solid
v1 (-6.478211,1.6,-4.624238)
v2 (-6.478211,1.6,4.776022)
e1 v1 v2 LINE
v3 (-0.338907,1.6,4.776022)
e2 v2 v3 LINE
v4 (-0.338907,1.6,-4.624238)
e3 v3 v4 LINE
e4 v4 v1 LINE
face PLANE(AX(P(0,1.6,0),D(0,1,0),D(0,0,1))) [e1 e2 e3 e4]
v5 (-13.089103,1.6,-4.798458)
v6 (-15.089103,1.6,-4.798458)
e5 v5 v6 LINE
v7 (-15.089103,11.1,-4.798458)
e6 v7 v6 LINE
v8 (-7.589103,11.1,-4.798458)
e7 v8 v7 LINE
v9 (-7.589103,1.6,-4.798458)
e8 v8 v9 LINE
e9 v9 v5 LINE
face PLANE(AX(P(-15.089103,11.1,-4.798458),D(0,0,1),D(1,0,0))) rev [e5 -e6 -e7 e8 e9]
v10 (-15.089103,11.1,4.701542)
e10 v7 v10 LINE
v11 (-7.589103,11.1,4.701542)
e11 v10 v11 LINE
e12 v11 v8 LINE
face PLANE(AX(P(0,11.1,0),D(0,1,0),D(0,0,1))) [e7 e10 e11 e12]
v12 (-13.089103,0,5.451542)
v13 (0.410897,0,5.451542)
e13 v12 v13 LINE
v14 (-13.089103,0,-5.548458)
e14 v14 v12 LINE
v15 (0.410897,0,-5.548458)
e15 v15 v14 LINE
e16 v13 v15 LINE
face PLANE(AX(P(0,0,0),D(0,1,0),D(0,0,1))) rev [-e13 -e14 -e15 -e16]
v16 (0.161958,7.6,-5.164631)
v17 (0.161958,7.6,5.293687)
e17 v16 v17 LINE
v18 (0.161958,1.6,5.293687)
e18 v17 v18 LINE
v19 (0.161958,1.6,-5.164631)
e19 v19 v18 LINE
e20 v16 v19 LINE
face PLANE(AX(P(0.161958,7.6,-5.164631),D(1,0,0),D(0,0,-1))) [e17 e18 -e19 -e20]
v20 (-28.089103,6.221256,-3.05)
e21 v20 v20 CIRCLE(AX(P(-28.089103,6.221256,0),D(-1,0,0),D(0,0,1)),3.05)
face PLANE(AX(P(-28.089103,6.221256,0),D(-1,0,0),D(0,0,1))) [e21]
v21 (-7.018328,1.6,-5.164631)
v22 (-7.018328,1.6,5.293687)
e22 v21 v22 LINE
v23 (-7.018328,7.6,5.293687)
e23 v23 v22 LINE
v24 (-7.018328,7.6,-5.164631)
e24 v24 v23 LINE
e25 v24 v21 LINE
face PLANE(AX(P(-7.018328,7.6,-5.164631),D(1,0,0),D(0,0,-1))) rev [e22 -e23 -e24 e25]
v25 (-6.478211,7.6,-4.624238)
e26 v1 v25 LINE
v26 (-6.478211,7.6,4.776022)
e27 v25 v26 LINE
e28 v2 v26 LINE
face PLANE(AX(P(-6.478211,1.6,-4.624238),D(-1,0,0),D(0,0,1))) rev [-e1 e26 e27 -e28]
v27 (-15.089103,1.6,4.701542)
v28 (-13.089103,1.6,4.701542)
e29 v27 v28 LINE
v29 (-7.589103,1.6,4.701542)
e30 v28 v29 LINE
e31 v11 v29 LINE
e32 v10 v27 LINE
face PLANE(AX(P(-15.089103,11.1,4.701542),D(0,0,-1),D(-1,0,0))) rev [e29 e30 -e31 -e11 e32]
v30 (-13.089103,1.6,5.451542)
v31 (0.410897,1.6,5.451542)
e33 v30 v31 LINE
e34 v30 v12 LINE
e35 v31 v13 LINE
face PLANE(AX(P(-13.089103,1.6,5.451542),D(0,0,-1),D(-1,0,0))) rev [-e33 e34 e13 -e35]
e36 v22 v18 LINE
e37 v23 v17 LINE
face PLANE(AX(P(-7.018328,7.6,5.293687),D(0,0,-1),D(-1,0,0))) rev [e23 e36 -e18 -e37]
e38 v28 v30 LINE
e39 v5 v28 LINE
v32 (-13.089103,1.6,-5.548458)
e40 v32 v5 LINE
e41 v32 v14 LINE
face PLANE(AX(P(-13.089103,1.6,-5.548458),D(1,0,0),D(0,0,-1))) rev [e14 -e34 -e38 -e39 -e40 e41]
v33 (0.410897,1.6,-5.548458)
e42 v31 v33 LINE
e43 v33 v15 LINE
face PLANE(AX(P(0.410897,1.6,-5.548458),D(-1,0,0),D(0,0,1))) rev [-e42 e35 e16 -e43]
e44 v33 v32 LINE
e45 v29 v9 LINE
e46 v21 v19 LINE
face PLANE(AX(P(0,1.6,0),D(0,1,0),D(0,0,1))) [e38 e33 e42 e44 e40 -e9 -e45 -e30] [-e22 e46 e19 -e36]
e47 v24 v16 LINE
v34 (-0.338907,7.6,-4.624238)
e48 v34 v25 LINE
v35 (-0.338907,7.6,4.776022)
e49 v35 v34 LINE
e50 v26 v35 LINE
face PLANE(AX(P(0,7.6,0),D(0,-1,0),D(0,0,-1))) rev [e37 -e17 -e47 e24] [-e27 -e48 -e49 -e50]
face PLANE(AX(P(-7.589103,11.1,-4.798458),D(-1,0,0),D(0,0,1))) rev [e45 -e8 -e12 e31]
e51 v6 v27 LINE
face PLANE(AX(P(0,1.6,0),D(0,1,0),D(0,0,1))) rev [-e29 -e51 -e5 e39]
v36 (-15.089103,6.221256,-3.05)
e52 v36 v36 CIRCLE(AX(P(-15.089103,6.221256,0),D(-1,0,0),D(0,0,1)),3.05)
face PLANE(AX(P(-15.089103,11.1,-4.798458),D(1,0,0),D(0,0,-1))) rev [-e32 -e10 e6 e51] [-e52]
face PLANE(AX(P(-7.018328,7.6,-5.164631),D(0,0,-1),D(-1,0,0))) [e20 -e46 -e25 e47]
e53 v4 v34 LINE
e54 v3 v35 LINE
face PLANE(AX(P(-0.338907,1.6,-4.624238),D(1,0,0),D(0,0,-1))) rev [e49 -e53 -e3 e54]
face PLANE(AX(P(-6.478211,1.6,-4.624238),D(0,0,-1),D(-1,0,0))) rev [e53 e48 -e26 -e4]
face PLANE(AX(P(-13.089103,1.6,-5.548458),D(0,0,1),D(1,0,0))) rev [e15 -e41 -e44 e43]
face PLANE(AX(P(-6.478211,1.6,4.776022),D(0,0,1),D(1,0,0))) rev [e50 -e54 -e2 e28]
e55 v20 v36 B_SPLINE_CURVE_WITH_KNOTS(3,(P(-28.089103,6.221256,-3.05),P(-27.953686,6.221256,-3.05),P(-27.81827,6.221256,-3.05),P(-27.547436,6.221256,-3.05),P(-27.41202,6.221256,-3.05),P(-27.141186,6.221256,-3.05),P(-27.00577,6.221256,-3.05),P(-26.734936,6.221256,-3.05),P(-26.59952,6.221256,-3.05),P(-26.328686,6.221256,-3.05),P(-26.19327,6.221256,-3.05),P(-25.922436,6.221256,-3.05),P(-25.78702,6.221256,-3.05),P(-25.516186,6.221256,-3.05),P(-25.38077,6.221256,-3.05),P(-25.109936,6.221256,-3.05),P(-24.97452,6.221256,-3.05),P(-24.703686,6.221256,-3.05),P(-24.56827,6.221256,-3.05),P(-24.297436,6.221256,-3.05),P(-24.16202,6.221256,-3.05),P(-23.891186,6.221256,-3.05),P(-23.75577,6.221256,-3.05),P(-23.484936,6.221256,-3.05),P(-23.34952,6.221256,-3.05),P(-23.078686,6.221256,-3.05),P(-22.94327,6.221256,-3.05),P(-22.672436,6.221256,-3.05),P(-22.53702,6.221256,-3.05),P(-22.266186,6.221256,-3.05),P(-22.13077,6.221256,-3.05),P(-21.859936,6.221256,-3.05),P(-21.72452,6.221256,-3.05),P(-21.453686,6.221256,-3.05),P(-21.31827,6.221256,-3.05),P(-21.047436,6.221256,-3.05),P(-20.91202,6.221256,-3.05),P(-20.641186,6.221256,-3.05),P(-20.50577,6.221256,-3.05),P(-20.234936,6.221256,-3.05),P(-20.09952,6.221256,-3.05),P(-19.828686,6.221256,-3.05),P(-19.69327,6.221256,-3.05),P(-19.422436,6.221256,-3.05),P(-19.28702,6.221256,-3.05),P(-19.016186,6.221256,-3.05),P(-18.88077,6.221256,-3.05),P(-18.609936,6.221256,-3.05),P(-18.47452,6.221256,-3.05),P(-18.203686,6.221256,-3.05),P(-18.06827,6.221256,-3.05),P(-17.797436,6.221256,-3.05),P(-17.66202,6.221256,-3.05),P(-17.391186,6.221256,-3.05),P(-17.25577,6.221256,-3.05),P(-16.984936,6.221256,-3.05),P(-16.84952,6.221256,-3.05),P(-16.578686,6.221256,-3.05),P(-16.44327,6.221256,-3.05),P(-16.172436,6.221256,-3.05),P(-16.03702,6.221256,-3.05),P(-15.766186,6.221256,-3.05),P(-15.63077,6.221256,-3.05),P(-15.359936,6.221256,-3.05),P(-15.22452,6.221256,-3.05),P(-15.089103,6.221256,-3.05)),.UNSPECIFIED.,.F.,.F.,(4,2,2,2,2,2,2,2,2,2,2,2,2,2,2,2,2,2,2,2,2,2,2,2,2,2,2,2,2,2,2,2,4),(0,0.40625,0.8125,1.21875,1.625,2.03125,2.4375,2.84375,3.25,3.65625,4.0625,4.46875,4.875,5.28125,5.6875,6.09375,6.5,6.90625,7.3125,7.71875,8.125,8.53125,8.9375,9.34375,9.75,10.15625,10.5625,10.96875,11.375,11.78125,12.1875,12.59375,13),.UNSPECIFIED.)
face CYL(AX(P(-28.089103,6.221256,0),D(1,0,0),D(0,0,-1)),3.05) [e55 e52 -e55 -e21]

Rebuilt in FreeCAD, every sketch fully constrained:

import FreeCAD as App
import Part
import Sketcher
from FreeCAD import Vector

doc = App.newDocument("Part")
body = doc.addObject("PartDesign::Body", "Body")

# Sketch on XZ plane
sketch1 = doc.addObject("Sketcher::SketchObject", "Sketch")
body.addObject(sketch1)
sketch1.AttachmentSupport = (doc.XZ_Plane, [""])
sketch1.MapMode = "FlatFace"
sketch1.addGeometry([
    Part.LineSegment(Vector(-13.089103, -5.548458, 0), Vector(-13.089103, 5.451542, 0)),
    Part.LineSegment(Vector(-13.089103, 5.451542, 0), Vector(0.410897, 5.451542, 0)),
    Part.LineSegment(Vector(0.410897, 5.451542, 0), Vector(0.410897, -5.548458, 0)),
    Part.LineSegment(Vector(0.410897, -5.548458, 0), Vector(-13.089103, -5.548458, 0)),
], False)
sketch1.addConstraint([
    Sketcher.Constraint("Coincident", 0, 2, 1, 1),
    Sketcher.Constraint("Coincident", 1, 2, 2, 1),
    Sketcher.Constraint("Coincident", 2, 2, 3, 1),
    Sketcher.Constraint("Coincident", 3, 2, 0, 1),
    Sketcher.Constraint("Vertical", 0),
    Sketcher.Constraint("Horizontal", 1),
    Sketcher.Constraint("Vertical", 2),
    Sketcher.Constraint("Horizontal", 3),
    Sketcher.Constraint("DistanceY", 0, 1, 0, 2, 11.0),
    Sketcher.Constraint("DistanceX", 1, 1, 1, 2, 13.5),
    Sketcher.Constraint("DistanceY", -1, 1, 0, 2, 5.451542),
    Sketcher.Constraint("DistanceX", 0, 2, -1, 1, 13.089103),
])
pad1 = doc.addObject("PartDesign::Pad", "Pad")
body.addObject(pad1)
pad1.Profile = sketch1
pad1.Length = 1.6
pad1.Reversed = True

# Sketch on XZ plane
sketch2 = doc.addObject("Sketcher::SketchObject", "Sketch001")
body.addObject(sketch2)
sketch2.AttachmentSupport = (doc.XZ_Plane, [""])
sketch2.MapMode = "FlatFace"
sketch2.AttachmentOffset = App.Placement(Vector(0, 0, -1.6), App.Rotation())
sketch2.addGeometry([
    Part.LineSegment(Vector(-15.089103, -4.798458, 0), Vector(-15.089103, 4.701542, 0)),
    Part.LineSegment(Vector(-15.089103, 4.701542, 0), Vector(-7.589103, 4.701542, 0)),
    Part.LineSegment(Vector(-7.589103, 4.701542, 0), Vector(-7.589103, -4.798458, 0)),
    Part.LineSegment(Vector(-7.589103, -4.798458, 0), Vector(-15.089103, -4.798458, 0)),
], False)
sketch2.addConstraint([
    Sketcher.Constraint("Coincident", 0, 2, 1, 1),
    Sketcher.Constraint("Coincident", 1, 2, 2, 1),
    Sketcher.Constraint("Coincident", 2, 2, 3, 1),
    Sketcher.Constraint("Coincident", 3, 2, 0, 1),
    Sketcher.Constraint("Vertical", 0),
    Sketcher.Constraint("Horizontal", 1),
    Sketcher.Constraint("Vertical", 2),
    Sketcher.Constraint("Horizontal", 3),
    Sketcher.Constraint("DistanceX", 1, 1, 1, 2, 7.5),
    Sketcher.Constraint("DistanceY", 0, 1, 0, 2, 9.5),
    Sketcher.Constraint("DistanceY", -1, 1, 0, 2, 4.701542),
    Sketcher.Constraint("DistanceX", 0, 2, -1, 1, 15.089103),
])
pad2 = doc.addObject("PartDesign::Pad", "Pad001")
body.addObject(pad2)
pad2.Profile = sketch2
pad2.Length = 9.5
pad2.Reversed = True

# Sketch on XZ plane
sketch3 = doc.addObject("Sketcher::SketchObject", "Sketch002")
body.addObject(sketch3)
sketch3.AttachmentSupport = (doc.XZ_Plane, [""])
sketch3.MapMode = "FlatFace"
sketch3.AttachmentOffset = App.Placement(Vector(0, 0, -1.6), App.Rotation())
sketch3.addGeometry([
    Part.LineSegment(Vector(-7.018328, -5.164631, 0), Vector(-7.018328, 5.293687, 0)),
    Part.LineSegment(Vector(-7.018328, 5.293687, 0), Vector(0.161958, 5.293687, 0)),
    Part.LineSegment(Vector(0.161958, 5.293687, 0), Vector(0.161958, -5.164631, 0)),
    Part.LineSegment(Vector(0.161958, -5.164631, 0), Vector(-7.018328, -5.164631, 0)),
], False)
sketch3.addConstraint([
    Sketcher.Constraint("Coincident", 0, 2, 1, 1),
    Sketcher.Constraint("Coincident", 1, 2, 2, 1),
    Sketcher.Constraint("Coincident", 2, 2, 3, 1),
    Sketcher.Constraint("Coincident", 3, 2, 0, 1),
    Sketcher.Constraint("Vertical", 0),
    Sketcher.Constraint("Horizontal", 1),
    Sketcher.Constraint("Vertical", 2),
    Sketcher.Constraint("Horizontal", 3),
    Sketcher.Constraint("DistanceY", 0, 1, 0, 2, 10.458319),
    Sketcher.Constraint("DistanceX", 1, 1, 1, 2, 7.180286),
    Sketcher.Constraint("DistanceX", 0, 2, -1, 1, 7.018328),
    Sketcher.Constraint("DistanceY", 2, 2, -1, 1, 5.164631),
])
pad3 = doc.addObject("PartDesign::Pad", "Pad002")
body.addObject(pad3)
pad3.Profile = sketch3
pad3.Length = 6
pad3.Reversed = True

# Sketch on XZ plane
sketch4 = doc.addObject("Sketcher::SketchObject", "Sketch003")
body.addObject(sketch4)
sketch4.AttachmentSupport = (doc.XZ_Plane, [""])
sketch4.MapMode = "FlatFace"
sketch4.AttachmentOffset = App.Placement(Vector(0, 0, -7.6), App.Rotation())
sketch4.addGeometry([
    Part.LineSegment(Vector(-6.478211, -4.624238, 0), Vector(-6.478211, 4.776022, 0)),
    Part.LineSegment(Vector(-6.478211, 4.776022, 0), Vector(-0.338907, 4.776022, 0)),
    Part.LineSegment(Vector(-0.338907, 4.776022, 0), Vector(-0.338907, -4.624238, 0)),
    Part.LineSegment(Vector(-0.338907, -4.624238, 0), Vector(-6.478211, -4.624238, 0)),
], False)
sketch4.addConstraint([
    Sketcher.Constraint("Coincident", 0, 2, 1, 1),
    Sketcher.Constraint("Coincident", 1, 2, 2, 1),
    Sketcher.Constraint("Coincident", 2, 2, 3, 1),
    Sketcher.Constraint("Coincident", 3, 2, 0, 1),
    Sketcher.Constraint("Vertical", 0),
    Sketcher.Constraint("Horizontal", 1),
    Sketcher.Constraint("Vertical", 2),
    Sketcher.Constraint("Horizontal", 3),
    Sketcher.Constraint("DistanceY", 0, 1, 0, 2, 9.40026),
    Sketcher.Constraint("DistanceX", 1, 1, 1, 2, 6.139304),
    Sketcher.Constraint("DistanceX", 0, 2, -1, 1, 6.478211),
    Sketcher.Constraint("DistanceY", -1, 1, 0, 2, 4.776022),
])
pocket1 = doc.addObject("PartDesign::Pocket", "Pocket")
body.addObject(pocket1)
pocket1.Profile = sketch4
pocket1.Length = 6
pocket1.Reversed = True

# Sketch on YZ plane
sketch5 = doc.addObject("Sketcher::SketchObject", "Sketch004")
body.addObject(sketch5)
sketch5.AttachmentSupport = (doc.YZ_Plane, [""])
sketch5.MapMode = "FlatFace"
sketch5.AttachmentOffset = App.Placement(Vector(0, 0, -15.089103), App.Rotation())
sketch5.addGeometry(Part.Circle(Vector(6.221256, 0, 0), Vector(0, 0, 1), 3.05), False)
sketch5.addConstraint([
    Sketcher.Constraint("PointOnObject", 0, 3, -1),
    Sketcher.Constraint("Diameter", 0, 6.1),
    Sketcher.Constraint("DistanceX", -1, 1, 0, 3, 6.221256),
])
pad4 = doc.addObject("PartDesign::Pad", "Pad003")
body.addObject(pad4)
pad4.Profile = sketch5
pad4.Length = 13
pad4.Reversed = True

doc.recompute()
